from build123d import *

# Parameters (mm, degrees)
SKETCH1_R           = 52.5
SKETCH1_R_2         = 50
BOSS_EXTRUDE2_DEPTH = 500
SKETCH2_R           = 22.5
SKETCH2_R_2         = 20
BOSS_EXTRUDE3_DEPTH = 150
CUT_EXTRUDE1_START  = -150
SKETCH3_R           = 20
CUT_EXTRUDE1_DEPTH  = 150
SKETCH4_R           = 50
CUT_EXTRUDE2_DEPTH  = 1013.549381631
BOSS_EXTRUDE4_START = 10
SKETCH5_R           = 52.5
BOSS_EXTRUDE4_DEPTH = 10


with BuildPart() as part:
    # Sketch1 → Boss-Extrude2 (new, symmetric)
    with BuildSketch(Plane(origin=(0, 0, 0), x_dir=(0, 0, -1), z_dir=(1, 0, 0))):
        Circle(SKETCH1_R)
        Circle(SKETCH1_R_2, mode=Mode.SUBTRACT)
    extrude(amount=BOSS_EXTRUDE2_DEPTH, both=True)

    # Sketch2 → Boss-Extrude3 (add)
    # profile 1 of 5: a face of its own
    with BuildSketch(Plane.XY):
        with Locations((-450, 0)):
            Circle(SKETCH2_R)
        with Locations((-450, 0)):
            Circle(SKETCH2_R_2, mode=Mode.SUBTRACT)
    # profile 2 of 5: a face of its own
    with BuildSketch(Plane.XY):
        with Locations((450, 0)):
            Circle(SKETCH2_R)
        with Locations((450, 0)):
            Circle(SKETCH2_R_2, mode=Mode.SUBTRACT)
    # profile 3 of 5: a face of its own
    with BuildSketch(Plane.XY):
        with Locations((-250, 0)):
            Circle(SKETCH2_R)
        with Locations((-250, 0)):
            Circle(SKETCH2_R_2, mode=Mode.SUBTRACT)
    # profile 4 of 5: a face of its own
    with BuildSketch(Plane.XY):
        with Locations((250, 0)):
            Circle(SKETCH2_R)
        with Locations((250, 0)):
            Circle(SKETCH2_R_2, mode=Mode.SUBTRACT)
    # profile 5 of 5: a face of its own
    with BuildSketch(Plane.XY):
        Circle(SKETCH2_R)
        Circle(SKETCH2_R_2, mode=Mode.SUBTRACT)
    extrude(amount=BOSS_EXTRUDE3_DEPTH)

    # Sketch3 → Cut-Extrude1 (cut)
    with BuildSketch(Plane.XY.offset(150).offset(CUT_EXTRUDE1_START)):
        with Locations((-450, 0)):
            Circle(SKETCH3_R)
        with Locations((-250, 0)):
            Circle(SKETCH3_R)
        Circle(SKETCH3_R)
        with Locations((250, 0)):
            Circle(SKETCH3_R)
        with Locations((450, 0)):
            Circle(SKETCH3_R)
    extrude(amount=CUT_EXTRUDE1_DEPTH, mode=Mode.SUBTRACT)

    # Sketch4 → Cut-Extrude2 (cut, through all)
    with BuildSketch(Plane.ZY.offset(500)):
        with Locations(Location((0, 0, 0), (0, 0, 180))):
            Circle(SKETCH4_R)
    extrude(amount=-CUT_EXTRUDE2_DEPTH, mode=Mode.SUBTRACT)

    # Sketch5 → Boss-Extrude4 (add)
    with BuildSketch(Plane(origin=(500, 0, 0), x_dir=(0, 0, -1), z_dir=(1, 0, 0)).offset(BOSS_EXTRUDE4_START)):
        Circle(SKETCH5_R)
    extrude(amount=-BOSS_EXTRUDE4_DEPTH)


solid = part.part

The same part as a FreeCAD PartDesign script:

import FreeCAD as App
import Part
import Sketcher
from FreeCAD import Vector

doc = App.newDocument("Part")
body = doc.addObject("PartDesign::Body", "Body")

# Sketch on YZ plane
sketch1 = body.newObject("Sketcher::SketchObject", "Sketch")
sketch1.AttachmentSupport = (doc.getObject("YZ_Plane"), [""])
sketch1.MapMode = "FlatFace"
sketch1.addGeometry([
    Part.Circle(Vector(0, 0, 0), Vector(0, 0, 1), 52),
    Part.Circle(Vector(0, 0, 0), Vector(0, 0, 1), 50),
], False)
sketch1.addConstraint([
    Sketcher.Constraint("Coincident", 0, 3, -1, 1),
    Sketcher.Constraint("Coincident", 1, 3, -1, 1),
    Sketcher.Constraint("Diameter", 0, 105.0),
    Sketcher.Constraint("Diameter", 1, 100.0),
])
pad1 = body.newObject("PartDesign::Pad", "Pad")
pad1.Profile = sketch1
pad1.Length = 1000
pad1.Midplane = True

# Sketch on XY plane
sketch2 = body.newObject("Sketcher::SketchObject", "Sketch001")
sketch2.AttachmentSupport = (doc.getObject("XY_Plane"), [""])
sketch2.MapMode = "FlatFace"
sketch2.addGeometry([
    Part.Circle(Vector(-450, 0, 0), Vector(0, 0, 1), 22),  # 0
    Part.Circle(Vector(-450, 0, 0), Vector(0, 0, 1), 20),  # 1
    Part.Circle(Vector(450, 0, 0), Vector(0, 0, 1), 22),  # 2
    Part.Circle(Vector(450, 0, 0), Vector(0, 0, 1), 20),  # 3
    Part.Circle(Vector(-250, 0, 0), Vector(0, 0, 1), 22),  # 4
    Part.Circle(Vector(-250, 0, 0), Vector(0, 0, 1), 20),  # 5
    Part.Circle(Vector(250, 0, 0), Vector(0, 0, 1), 22),  # 6
    Part.Circle(Vector(250, 0, 0), Vector(0, 0, 1), 20),  # 7
    Part.Circle(Vector(0, 0, 0), Vector(0, 0, 1), 22),  # 8
    Part.Circle(Vector(0, 0, 0), Vector(0, 0, 1), 20),  # 9
], False)
sketch2.addConstraint([
    Sketcher.Constraint("Coincident", 8, 3, -1, 1),
    Sketcher.Constraint("Coincident", 9, 3, -1, 1),
    Sketcher.Constraint("Coincident", 1, 3, 0, 3),
    Sketcher.Constraint("Coincident", 3, 3, 2, 3),
    Sketcher.Constraint("Coincident", 5, 3, 4, 3),
    Sketcher.Constraint("Coincident", 7, 3, 6, 3),
    Sketcher.Constraint("Equal", 0, 2),
    Sketcher.Constraint("Equal", 1, 3),
    Sketcher.Constraint("Equal", 2, 4),
    Sketcher.Constraint("Equal", 3, 5),
    Sketcher.Constraint("Equal", 4, 6),
    Sketcher.Constraint("Equal", 5, 7),
    Sketcher.Constraint("Equal", 6, 8),
    Sketcher.Constraint("Equal", 7, 9),
    Sketcher.Constraint("Symmetric", 0, 3, 2, 3, -1, 1),
    Sketcher.Constraint("Symmetric", 4, 3, 6, 3, -1, 1),
    Sketcher.Constraint("PointOnObject", 0, 3, -1),
    Sketcher.Constraint("PointOnObject", 4, 3, -1),
    Sketcher.Constraint("Diameter", 0, 45.0),
    Sketcher.Constraint("Diameter", 1, 40.0),
    Sketcher.Constraint("DistanceX", 0, 3, -1, 1, 450.0),
    Sketcher.Constraint("DistanceX", 4, 3, -1, 1, 250.0),
])
pad2 = body.newObject("PartDesign::Pad", "Pad001")
pad2.Profile = sketch2
pad2.Length = 150

# Sketch on XY plane
sketch3 = body.newObject("Sketcher::SketchObject", "Sketch002")
sketch3.AttachmentSupport = (doc.getObject("XY_Plane"), [""])
sketch3.MapMode = "FlatFace"
sketch3.addGeometry([
    Part.Circle(Vector(-450, 0, 0), Vector(0, 0, 1), 20),  # 0
    Part.Circle(Vector(-250, 0, 0), Vector(0, 0, 1), 20),  # 1
    Part.Circle(Vector(0, 0, 0), Vector(0, 0, 1), 20),  # 2
    Part.Circle(Vector(250, 0, 0), Vector(0, 0, 1), 20),  # 3
    Part.Circle(Vector(450, 0, 0), Vector(0, 0, 1), 20),  # 4
], False)
sketch3.addConstraint([
    Sketcher.Constraint("Coincident", 2, 3, -1, 1),
    Sketcher.Constraint("Equal", 0, 1),
    Sketcher.Constraint("Equal", 1, 2),
    Sketcher.Constraint("Equal", 2, 3),
    Sketcher.Constraint("Equal", 3, 4),
    Sketcher.Constraint("Symmetric", 1, 3, 3, 3, -1, 1),
    Sketcher.Constraint("Symmetric", 0, 3, 4, 3, -1, 1),
    Sketcher.Constraint("PointOnObject", 0, 3, -1),
    Sketcher.Constraint("PointOnObject", 1, 3, -1),
    Sketcher.Constraint("Diameter", 0, 40.0),
    Sketcher.Constraint("DistanceX", 0, 3, -1, 1, 450.0),
    Sketcher.Constraint("DistanceX", 1, 3, -1, 1, 250.0),
])
pocket1 = body.newObject("PartDesign::Pocket", "Pocket")
pocket1.Profile = sketch3
pocket1.Length = 150
pocket1.Reversed = True

# Sketch on YZ plane
sketch4 = body.newObject("Sketcher::SketchObject", "Sketch003")
sketch4.AttachmentSupport = (doc.getObject("YZ_Plane"), [""])
sketch4.MapMode = "FlatFace"
sketch4.AttachmentOffset = App.Placement(Vector(0, 0, -500), App.Rotation())
sketch4.addGeometry(Part.Circle(Vector(0, 0, 0), Vector(0, 0, 1), 50), False)
sketch4.addConstraint([
    Sketcher.Constraint("Coincident", 0, 3, -1, 1),
    Sketcher.Constraint("Diameter", 0, 100.0),
])
pocket2 = body.newObject("PartDesign::Pocket", "Pocket001")
pocket2.Profile = sketch4
pocket2.Type = "ThroughAll"
pocket2.Reversed = True

# Sketch on YZ plane
sketch5 = body.newObject("Sketcher::SketchObject", "Sketch004")
sketch5.AttachmentSupport = (doc.getObject("YZ_Plane"), [""])
sketch5.MapMode = "FlatFace"
sketch5.AttachmentOffset = App.Placement(Vector(0, 0, 510), App.Rotation())
sketch5.addGeometry(Part.Circle(Vector(0, 0, 0), Vector(0, 0, 1), 52), False)
sketch5.addConstraint([
    Sketcher.Constraint("Coincident", 0, 3, -1, 1),
    Sketcher.Constraint("Diameter", 0, 105.0),
])
pad3 = body.newObject("PartDesign::Pad", "Pad002")
pad3.Profile = sketch5
pad3.Length = 10
pad3.Reversed = True

doc.recompute()
